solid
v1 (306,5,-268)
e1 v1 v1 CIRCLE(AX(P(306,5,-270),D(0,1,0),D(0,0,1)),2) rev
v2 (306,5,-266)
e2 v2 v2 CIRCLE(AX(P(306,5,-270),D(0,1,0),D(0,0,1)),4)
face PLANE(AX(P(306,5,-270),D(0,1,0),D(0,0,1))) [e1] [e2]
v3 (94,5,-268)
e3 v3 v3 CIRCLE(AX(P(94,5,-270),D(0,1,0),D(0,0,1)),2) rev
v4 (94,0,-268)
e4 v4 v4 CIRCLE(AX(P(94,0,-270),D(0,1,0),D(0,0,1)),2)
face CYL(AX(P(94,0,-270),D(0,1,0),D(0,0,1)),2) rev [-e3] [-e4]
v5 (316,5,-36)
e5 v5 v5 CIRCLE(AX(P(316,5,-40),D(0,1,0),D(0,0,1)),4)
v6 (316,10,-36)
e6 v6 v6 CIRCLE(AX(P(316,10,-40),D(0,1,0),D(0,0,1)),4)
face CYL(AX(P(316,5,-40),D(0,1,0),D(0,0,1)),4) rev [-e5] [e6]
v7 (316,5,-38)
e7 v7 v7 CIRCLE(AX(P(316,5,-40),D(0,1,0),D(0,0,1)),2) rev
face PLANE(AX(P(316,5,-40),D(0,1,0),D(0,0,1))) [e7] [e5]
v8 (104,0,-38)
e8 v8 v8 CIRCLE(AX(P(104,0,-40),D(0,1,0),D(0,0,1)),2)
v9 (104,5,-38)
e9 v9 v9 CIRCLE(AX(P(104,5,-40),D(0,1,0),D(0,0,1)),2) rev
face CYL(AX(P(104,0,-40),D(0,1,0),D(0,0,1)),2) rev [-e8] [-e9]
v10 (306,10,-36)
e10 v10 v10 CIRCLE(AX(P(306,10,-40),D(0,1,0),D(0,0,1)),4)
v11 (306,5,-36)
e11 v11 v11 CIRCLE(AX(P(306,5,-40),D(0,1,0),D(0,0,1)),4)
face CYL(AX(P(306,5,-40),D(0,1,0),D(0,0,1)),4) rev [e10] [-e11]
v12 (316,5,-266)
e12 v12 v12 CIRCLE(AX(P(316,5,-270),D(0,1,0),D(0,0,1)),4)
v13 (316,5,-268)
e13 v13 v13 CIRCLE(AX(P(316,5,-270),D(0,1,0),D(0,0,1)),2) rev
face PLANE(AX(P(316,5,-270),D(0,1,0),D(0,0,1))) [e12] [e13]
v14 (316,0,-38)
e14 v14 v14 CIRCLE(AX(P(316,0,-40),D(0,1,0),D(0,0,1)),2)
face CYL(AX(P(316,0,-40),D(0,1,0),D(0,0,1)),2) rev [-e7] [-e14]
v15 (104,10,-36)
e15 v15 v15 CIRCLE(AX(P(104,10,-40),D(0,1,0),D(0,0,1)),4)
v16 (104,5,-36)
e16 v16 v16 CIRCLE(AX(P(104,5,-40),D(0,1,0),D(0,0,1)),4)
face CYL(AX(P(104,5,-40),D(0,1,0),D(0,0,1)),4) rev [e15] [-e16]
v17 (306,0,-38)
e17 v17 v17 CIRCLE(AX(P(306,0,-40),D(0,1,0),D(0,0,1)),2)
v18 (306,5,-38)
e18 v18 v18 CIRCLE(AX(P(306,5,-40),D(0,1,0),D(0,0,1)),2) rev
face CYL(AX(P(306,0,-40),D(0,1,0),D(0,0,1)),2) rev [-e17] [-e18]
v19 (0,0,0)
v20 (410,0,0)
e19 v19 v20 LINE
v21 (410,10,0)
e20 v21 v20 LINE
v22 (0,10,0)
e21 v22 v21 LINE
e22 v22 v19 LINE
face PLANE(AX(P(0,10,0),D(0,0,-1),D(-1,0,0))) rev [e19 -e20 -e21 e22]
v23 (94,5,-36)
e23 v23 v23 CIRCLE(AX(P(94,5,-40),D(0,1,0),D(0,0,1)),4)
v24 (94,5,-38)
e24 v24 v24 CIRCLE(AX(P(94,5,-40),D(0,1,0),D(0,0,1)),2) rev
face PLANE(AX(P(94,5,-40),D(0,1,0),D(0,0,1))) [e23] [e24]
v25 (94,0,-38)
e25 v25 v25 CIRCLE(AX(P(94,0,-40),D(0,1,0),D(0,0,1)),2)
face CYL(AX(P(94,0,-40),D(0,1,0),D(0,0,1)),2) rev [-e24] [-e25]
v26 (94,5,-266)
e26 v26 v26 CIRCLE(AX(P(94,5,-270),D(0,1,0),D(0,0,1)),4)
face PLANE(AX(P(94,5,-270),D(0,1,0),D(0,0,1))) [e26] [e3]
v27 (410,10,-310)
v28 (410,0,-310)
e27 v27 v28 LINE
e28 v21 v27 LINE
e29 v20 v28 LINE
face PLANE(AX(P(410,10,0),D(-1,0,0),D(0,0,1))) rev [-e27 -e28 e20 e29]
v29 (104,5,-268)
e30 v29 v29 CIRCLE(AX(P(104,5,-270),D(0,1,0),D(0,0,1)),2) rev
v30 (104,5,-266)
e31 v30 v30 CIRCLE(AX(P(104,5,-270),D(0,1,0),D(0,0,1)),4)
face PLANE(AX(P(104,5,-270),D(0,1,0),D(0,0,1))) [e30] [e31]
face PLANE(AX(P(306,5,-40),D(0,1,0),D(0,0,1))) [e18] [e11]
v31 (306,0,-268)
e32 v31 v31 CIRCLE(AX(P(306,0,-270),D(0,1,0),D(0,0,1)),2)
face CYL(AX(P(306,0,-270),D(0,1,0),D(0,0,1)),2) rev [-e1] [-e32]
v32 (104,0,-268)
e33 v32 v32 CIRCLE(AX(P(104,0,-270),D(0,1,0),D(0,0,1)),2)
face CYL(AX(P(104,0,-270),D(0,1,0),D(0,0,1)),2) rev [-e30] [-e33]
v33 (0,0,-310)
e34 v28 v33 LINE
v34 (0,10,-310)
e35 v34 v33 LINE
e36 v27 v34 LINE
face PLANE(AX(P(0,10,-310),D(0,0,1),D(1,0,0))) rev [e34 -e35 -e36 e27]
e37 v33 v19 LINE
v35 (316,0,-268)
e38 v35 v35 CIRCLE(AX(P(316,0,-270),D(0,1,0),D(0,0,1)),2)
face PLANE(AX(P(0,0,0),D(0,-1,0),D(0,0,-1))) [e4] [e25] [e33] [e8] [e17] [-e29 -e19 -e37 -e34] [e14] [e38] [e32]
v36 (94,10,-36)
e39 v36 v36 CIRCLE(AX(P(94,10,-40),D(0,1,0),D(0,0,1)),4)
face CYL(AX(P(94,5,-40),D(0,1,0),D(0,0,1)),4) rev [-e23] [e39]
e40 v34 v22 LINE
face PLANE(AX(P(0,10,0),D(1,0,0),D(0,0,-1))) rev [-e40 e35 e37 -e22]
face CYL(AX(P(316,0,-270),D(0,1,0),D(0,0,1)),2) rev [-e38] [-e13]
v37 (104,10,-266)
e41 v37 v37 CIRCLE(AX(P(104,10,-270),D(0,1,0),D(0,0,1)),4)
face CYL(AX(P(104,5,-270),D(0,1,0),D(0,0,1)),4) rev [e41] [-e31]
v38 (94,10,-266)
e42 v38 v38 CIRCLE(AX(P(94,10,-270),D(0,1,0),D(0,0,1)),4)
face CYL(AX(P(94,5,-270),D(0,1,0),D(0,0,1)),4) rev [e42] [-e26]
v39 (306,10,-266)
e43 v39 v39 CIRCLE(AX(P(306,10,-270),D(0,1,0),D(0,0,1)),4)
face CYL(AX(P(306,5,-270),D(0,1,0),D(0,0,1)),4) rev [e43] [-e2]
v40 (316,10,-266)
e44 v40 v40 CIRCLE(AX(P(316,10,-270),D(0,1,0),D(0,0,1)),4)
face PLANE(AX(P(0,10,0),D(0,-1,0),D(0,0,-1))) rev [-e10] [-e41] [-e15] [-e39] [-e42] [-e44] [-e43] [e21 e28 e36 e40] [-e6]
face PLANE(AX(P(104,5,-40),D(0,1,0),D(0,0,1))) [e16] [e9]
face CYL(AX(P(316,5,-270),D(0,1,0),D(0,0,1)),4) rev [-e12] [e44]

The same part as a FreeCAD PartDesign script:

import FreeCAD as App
import Part
import Sketcher
from FreeCAD import Vector
Q = App.Units.Quantity

doc = App.newDocument("Part")
body = doc.addObject("PartDesign::Body", "Body")

sketch1 = doc.addObject("Sketcher::SketchObject", "Sketch")
body.addObject(sketch1)
sketch1.AttachmentSupport = (doc.XZ_Plane, [""])
sketch1.MapMode = "FlatFace"
sketch1.addGeometry(Part.LineSegment(Vector(0, -310, 0), Vector(0, 0, 0)), False)
sketch1.addGeometry(Part.LineSegment(Vector(0, 0, 0), Vector(410, 0, 0)), False)
sketch1.addGeometry(Part.LineSegment(Vector(410, 0, 0), Vector(410, -310, 0)), False)
sketch1.addGeometry(Part.LineSegment(Vector(410, -310, 0), Vector(0, -310, 0)), False)
sketch1.addConstraint(Sketcher.Constraint("Coincident", 0, 2, 1, 1))
sketch1.addConstraint(Sketcher.Constraint("Coincident", 1, 2, 2, 1))
sketch1.addConstraint(Sketcher.Constraint("Coincident", 2, 2, 3, 1))
sketch1.addConstraint(Sketcher.Constraint("Coincident", 3, 2, 0, 1))
sketch1.addConstraint(Sketcher.Constraint("Vertical", 0))
sketch1.addConstraint(Sketcher.Constraint("Horizontal", 1))
sketch1.addConstraint(Sketcher.Constraint("Vertical", 2))
sketch1.addConstraint(Sketcher.Constraint("Horizontal", 3))
sketch1.addConstraint(Sketcher.Constraint("Coincident", 0, 2, -1, 1))
sketch1.addConstraint(Sketcher.Constraint("DistanceX", 1, 1, 1, 2, Q("410 mm")))
sketch1.addConstraint(Sketcher.Constraint("DistanceY", 0, 1, 0, 2, Q("310 mm")))
pad1 = doc.addObject("PartDesign::Pad", "Pad")
body.addObject(pad1)
pad1.Profile = sketch1
pad1.Length = 10
pad1.Reversed = True

sketch2 = doc.addObject("Sketcher::SketchObject", "Sketch001")
body.addObject(sketch2)
sketch2.AttachmentSupport = (doc.XZ_Plane, [""])
sketch2.MapMode = "FlatFace"
sketch2.AttachmentOffset = App.Placement(Vector(0, 0, -10), App.Rotation())
sketch2.addGeometry(Part.Circle(Vector(94, -40, 0), Vector(0, 0, 1), 2), False)
sketch2.addGeometry(Part.Circle(Vector(104, -40, 0), Vector(0, 0, 1), 2), False)
sketch2.addGeometry(Part.Circle(Vector(306, -40, 0), Vector(0, 0, 1), 2), False)
sketch2.addGeometry(Part.Circle(Vector(316, -40, 0), Vector(0, 0, 1), 2), False)
sketch2.addGeometry(Part.Circle(Vector(316, -270, 0), Vector(0, 0, 1), 2), False)
sketch2.addGeometry(Part.Circle(Vector(306, -270, 0), Vector(0, 0, 1), 2), False)
sketch2.addGeometry(Part.Circle(Vector(104, -270, 0), Vector(0, 0, 1), 2), False)
sketch2.addGeometry(Part.Circle(Vector(94, -270, 0), Vector(0, 0, 1), 2), False)
sketch2.addConstraint(Sketcher.Constraint("Equal", 0, 1))
sketch2.addConstraint(Sketcher.Constraint("Equal", 1, 2))
sketch2.addConstraint(Sketcher.Constraint("Equal", 2, 3))
sketch2.addConstraint(Sketcher.Constraint("Equal", 3, 4))
sketch2.addConstraint(Sketcher.Constraint("Equal", 4, 5))
sketch2.addConstraint(Sketcher.Constraint("Equal", 5, 6))
sketch2.addConstraint(Sketcher.Constraint("Equal", 6, 7))
sketch2.addConstraint(Sketcher.Constraint("Horizontal", 0, 3, 1, 3))
sketch2.addConstraint(Sketcher.Constraint("Horizontal", 1, 3, 2, 3))
sketch2.addConstraint(Sketcher.Constraint("Horizontal", 2, 3, 3, 3))
sketch2.addConstraint(Sketcher.Constraint("Horizontal", 4, 3, 5, 3))
sketch2.addConstraint(Sketcher.Constraint("Horizontal", 5, 3, 6, 3))
sketch2.addConstraint(Sketcher.Constraint("Horizontal", 6, 3, 7, 3))
sketch2.addConstraint(Sketcher.Constraint("Vertical", 3, 3, 4, 3))
sketch2.addConstraint(Sketcher.Constraint("Vertical", 2, 3, 5, 3))
sketch2.addConstraint(Sketcher.Constraint("Vertical", 1, 3, 6, 3))
sketch2.addConstraint(Sketcher.Constraint("Vertical", 0, 3, 7, 3))
sketch2.addConstraint(Sketcher.Constraint("Diameter", 0, Q("4 mm")))
sketch2.addConstraint(Sketcher.Constraint("DistanceX", -1, 1, 0, 3, Q("94 mm")))
sketch2.addConstraint(Sketcher.Constraint("DistanceY", 0, 3, -1, 1, Q("40 mm")))
sketch2.addConstraint(Sketcher.Constraint("DistanceX", -1, 1, 1, 3, Q("104 mm")))
sketch2.addConstraint(Sketcher.Constraint("DistanceX", -1, 1, 2, 3, Q("306 mm")))
sketch2.addConstraint(Sketcher.Constraint("DistanceX", -1, 1, 3, 3, Q("316 mm")))
sketch2.addConstraint(Sketcher.Constraint("DistanceY", 4, 3, -1, 1, Q("270 mm")))
pocket1 = doc.addObject("PartDesign::Pocket", "Pocket")
body.addObject(pocket1)
pocket1.Profile = sketch2
pocket1.Type = "ThroughAll"
pocket1.Reversed = True

sketch3 = doc.addObject("Sketcher::SketchObject", "Sketch002")
body.addObject(sketch3)
sketch3.AttachmentSupport = (doc.XZ_Plane, [""])
sketch3.MapMode = "FlatFace"
sketch3.AttachmentOffset = App.Placement(Vector(0, 0, -10), App.Rotation())
sketch3.addGeometry(Part.Circle(Vector(94, -270, 0), Vector(0, 0, 1), 4), False)
sketch3.addGeometry(Part.Circle(Vector(104, -270, 0), Vector(0, 0, 1), 4), False)
sketch3.addGeometry(Part.Circle(Vector(306, -270, 0), Vector(0, 0, 1), 4), False)
sketch3.addGeometry(Part.Circle(Vector(316, -270, 0), Vector(0, 0, 1), 4), False)
sketch3.addGeometry(Part.Circle(Vector(306, -40, 0), Vector(0, 0, 1), 4), False)
sketch3.addGeometry(Part.Circle(Vector(316, -40, 0), Vector(0, 0, 1), 4), False)
sketch3.addGeometry(Part.Circle(Vector(94, -40, 0), Vector(0, 0, 1), 4), False)
sketch3.addGeometry(Part.Circle(Vector(104, -40, 0), Vector(0, 0, 1), 4), False)
sketch3.addConstraint(Sketcher.Constraint("Equal", 0, 1))
sketch3.addConstraint(Sketcher.Constraint("Equal", 1, 2))
sketch3.addConstraint(Sketcher.Constraint("Equal", 2, 3))
sketch3.addConstraint(Sketcher.Constraint("Equal", 3, 4))
sketch3.addConstraint(Sketcher.Constraint("Equal", 4, 5))
sketch3.addConstraint(Sketcher.Constraint("Equal", 5, 6))
sketch3.addConstraint(Sketcher.Constraint("Equal", 6, 7))
sketch3.addConstraint(Sketcher.Constraint("Horizontal", 0, 3, 1, 3))
sketch3.addConstraint(Sketcher.Constraint("Horizontal", 1, 3, 2, 3))
sketch3.addConstraint(Sketcher.Constraint("Horizontal", 2, 3, 3, 3))
sketch3.addConstraint(Sketcher.Constraint("Horizontal", 4, 3, 5, 3))
sketch3.addConstraint(Sketcher.Constraint("Horizontal", 5, 3, 6, 3))
sketch3.addConstraint(Sketcher.Constraint("Horizontal", 6, 3, 7, 3))
sketch3.addConstraint(Sketcher.Constraint("Vertical", 2, 3, 4, 3))
sketch3.addConstraint(Sketcher.Constraint("Vertical", 3, 3, 5, 3))
sketch3.addConstraint(Sketcher.Constraint("Vertical", 0, 3, 6, 3))
sketch3.addConstraint(Sketcher.Constraint("Vertical", 1, 3, 7, 3))
sketch3.addConstraint(Sketcher.Constraint("Diameter", 0, Q("8 mm")))
sketch3.addConstraint(Sketcher.Constraint("DistanceX", -1, 1, 0, 3, Q("94 mm")))
sketch3.addConstraint(Sketcher.Constraint("DistanceY", 0, 3, -1, 1, Q("270 mm")))
sketch3.addConstraint(Sketcher.Constraint("DistanceX", -1, 1, 1, 3, Q("104 mm")))
sketch3.addConstraint(Sketcher.Constraint("DistanceX", -1, 1, 2, 3, Q("306 mm")))
sketch3.addConstraint(Sketcher.Constraint("DistanceX", -1, 1, 3, 3, Q("316 mm")))
sketch3.addConstraint(Sketcher.Constraint("DistanceY", 4, 3, -1, 1, Q("40 mm")))
pocket2 = doc.addObject("PartDesign::Pocket", "Pocket001")
body.addObject(pocket2)
pocket2.Profile = sketch3
pocket2.Length = 5
pocket2.Reversed = True

doc.recompute()
